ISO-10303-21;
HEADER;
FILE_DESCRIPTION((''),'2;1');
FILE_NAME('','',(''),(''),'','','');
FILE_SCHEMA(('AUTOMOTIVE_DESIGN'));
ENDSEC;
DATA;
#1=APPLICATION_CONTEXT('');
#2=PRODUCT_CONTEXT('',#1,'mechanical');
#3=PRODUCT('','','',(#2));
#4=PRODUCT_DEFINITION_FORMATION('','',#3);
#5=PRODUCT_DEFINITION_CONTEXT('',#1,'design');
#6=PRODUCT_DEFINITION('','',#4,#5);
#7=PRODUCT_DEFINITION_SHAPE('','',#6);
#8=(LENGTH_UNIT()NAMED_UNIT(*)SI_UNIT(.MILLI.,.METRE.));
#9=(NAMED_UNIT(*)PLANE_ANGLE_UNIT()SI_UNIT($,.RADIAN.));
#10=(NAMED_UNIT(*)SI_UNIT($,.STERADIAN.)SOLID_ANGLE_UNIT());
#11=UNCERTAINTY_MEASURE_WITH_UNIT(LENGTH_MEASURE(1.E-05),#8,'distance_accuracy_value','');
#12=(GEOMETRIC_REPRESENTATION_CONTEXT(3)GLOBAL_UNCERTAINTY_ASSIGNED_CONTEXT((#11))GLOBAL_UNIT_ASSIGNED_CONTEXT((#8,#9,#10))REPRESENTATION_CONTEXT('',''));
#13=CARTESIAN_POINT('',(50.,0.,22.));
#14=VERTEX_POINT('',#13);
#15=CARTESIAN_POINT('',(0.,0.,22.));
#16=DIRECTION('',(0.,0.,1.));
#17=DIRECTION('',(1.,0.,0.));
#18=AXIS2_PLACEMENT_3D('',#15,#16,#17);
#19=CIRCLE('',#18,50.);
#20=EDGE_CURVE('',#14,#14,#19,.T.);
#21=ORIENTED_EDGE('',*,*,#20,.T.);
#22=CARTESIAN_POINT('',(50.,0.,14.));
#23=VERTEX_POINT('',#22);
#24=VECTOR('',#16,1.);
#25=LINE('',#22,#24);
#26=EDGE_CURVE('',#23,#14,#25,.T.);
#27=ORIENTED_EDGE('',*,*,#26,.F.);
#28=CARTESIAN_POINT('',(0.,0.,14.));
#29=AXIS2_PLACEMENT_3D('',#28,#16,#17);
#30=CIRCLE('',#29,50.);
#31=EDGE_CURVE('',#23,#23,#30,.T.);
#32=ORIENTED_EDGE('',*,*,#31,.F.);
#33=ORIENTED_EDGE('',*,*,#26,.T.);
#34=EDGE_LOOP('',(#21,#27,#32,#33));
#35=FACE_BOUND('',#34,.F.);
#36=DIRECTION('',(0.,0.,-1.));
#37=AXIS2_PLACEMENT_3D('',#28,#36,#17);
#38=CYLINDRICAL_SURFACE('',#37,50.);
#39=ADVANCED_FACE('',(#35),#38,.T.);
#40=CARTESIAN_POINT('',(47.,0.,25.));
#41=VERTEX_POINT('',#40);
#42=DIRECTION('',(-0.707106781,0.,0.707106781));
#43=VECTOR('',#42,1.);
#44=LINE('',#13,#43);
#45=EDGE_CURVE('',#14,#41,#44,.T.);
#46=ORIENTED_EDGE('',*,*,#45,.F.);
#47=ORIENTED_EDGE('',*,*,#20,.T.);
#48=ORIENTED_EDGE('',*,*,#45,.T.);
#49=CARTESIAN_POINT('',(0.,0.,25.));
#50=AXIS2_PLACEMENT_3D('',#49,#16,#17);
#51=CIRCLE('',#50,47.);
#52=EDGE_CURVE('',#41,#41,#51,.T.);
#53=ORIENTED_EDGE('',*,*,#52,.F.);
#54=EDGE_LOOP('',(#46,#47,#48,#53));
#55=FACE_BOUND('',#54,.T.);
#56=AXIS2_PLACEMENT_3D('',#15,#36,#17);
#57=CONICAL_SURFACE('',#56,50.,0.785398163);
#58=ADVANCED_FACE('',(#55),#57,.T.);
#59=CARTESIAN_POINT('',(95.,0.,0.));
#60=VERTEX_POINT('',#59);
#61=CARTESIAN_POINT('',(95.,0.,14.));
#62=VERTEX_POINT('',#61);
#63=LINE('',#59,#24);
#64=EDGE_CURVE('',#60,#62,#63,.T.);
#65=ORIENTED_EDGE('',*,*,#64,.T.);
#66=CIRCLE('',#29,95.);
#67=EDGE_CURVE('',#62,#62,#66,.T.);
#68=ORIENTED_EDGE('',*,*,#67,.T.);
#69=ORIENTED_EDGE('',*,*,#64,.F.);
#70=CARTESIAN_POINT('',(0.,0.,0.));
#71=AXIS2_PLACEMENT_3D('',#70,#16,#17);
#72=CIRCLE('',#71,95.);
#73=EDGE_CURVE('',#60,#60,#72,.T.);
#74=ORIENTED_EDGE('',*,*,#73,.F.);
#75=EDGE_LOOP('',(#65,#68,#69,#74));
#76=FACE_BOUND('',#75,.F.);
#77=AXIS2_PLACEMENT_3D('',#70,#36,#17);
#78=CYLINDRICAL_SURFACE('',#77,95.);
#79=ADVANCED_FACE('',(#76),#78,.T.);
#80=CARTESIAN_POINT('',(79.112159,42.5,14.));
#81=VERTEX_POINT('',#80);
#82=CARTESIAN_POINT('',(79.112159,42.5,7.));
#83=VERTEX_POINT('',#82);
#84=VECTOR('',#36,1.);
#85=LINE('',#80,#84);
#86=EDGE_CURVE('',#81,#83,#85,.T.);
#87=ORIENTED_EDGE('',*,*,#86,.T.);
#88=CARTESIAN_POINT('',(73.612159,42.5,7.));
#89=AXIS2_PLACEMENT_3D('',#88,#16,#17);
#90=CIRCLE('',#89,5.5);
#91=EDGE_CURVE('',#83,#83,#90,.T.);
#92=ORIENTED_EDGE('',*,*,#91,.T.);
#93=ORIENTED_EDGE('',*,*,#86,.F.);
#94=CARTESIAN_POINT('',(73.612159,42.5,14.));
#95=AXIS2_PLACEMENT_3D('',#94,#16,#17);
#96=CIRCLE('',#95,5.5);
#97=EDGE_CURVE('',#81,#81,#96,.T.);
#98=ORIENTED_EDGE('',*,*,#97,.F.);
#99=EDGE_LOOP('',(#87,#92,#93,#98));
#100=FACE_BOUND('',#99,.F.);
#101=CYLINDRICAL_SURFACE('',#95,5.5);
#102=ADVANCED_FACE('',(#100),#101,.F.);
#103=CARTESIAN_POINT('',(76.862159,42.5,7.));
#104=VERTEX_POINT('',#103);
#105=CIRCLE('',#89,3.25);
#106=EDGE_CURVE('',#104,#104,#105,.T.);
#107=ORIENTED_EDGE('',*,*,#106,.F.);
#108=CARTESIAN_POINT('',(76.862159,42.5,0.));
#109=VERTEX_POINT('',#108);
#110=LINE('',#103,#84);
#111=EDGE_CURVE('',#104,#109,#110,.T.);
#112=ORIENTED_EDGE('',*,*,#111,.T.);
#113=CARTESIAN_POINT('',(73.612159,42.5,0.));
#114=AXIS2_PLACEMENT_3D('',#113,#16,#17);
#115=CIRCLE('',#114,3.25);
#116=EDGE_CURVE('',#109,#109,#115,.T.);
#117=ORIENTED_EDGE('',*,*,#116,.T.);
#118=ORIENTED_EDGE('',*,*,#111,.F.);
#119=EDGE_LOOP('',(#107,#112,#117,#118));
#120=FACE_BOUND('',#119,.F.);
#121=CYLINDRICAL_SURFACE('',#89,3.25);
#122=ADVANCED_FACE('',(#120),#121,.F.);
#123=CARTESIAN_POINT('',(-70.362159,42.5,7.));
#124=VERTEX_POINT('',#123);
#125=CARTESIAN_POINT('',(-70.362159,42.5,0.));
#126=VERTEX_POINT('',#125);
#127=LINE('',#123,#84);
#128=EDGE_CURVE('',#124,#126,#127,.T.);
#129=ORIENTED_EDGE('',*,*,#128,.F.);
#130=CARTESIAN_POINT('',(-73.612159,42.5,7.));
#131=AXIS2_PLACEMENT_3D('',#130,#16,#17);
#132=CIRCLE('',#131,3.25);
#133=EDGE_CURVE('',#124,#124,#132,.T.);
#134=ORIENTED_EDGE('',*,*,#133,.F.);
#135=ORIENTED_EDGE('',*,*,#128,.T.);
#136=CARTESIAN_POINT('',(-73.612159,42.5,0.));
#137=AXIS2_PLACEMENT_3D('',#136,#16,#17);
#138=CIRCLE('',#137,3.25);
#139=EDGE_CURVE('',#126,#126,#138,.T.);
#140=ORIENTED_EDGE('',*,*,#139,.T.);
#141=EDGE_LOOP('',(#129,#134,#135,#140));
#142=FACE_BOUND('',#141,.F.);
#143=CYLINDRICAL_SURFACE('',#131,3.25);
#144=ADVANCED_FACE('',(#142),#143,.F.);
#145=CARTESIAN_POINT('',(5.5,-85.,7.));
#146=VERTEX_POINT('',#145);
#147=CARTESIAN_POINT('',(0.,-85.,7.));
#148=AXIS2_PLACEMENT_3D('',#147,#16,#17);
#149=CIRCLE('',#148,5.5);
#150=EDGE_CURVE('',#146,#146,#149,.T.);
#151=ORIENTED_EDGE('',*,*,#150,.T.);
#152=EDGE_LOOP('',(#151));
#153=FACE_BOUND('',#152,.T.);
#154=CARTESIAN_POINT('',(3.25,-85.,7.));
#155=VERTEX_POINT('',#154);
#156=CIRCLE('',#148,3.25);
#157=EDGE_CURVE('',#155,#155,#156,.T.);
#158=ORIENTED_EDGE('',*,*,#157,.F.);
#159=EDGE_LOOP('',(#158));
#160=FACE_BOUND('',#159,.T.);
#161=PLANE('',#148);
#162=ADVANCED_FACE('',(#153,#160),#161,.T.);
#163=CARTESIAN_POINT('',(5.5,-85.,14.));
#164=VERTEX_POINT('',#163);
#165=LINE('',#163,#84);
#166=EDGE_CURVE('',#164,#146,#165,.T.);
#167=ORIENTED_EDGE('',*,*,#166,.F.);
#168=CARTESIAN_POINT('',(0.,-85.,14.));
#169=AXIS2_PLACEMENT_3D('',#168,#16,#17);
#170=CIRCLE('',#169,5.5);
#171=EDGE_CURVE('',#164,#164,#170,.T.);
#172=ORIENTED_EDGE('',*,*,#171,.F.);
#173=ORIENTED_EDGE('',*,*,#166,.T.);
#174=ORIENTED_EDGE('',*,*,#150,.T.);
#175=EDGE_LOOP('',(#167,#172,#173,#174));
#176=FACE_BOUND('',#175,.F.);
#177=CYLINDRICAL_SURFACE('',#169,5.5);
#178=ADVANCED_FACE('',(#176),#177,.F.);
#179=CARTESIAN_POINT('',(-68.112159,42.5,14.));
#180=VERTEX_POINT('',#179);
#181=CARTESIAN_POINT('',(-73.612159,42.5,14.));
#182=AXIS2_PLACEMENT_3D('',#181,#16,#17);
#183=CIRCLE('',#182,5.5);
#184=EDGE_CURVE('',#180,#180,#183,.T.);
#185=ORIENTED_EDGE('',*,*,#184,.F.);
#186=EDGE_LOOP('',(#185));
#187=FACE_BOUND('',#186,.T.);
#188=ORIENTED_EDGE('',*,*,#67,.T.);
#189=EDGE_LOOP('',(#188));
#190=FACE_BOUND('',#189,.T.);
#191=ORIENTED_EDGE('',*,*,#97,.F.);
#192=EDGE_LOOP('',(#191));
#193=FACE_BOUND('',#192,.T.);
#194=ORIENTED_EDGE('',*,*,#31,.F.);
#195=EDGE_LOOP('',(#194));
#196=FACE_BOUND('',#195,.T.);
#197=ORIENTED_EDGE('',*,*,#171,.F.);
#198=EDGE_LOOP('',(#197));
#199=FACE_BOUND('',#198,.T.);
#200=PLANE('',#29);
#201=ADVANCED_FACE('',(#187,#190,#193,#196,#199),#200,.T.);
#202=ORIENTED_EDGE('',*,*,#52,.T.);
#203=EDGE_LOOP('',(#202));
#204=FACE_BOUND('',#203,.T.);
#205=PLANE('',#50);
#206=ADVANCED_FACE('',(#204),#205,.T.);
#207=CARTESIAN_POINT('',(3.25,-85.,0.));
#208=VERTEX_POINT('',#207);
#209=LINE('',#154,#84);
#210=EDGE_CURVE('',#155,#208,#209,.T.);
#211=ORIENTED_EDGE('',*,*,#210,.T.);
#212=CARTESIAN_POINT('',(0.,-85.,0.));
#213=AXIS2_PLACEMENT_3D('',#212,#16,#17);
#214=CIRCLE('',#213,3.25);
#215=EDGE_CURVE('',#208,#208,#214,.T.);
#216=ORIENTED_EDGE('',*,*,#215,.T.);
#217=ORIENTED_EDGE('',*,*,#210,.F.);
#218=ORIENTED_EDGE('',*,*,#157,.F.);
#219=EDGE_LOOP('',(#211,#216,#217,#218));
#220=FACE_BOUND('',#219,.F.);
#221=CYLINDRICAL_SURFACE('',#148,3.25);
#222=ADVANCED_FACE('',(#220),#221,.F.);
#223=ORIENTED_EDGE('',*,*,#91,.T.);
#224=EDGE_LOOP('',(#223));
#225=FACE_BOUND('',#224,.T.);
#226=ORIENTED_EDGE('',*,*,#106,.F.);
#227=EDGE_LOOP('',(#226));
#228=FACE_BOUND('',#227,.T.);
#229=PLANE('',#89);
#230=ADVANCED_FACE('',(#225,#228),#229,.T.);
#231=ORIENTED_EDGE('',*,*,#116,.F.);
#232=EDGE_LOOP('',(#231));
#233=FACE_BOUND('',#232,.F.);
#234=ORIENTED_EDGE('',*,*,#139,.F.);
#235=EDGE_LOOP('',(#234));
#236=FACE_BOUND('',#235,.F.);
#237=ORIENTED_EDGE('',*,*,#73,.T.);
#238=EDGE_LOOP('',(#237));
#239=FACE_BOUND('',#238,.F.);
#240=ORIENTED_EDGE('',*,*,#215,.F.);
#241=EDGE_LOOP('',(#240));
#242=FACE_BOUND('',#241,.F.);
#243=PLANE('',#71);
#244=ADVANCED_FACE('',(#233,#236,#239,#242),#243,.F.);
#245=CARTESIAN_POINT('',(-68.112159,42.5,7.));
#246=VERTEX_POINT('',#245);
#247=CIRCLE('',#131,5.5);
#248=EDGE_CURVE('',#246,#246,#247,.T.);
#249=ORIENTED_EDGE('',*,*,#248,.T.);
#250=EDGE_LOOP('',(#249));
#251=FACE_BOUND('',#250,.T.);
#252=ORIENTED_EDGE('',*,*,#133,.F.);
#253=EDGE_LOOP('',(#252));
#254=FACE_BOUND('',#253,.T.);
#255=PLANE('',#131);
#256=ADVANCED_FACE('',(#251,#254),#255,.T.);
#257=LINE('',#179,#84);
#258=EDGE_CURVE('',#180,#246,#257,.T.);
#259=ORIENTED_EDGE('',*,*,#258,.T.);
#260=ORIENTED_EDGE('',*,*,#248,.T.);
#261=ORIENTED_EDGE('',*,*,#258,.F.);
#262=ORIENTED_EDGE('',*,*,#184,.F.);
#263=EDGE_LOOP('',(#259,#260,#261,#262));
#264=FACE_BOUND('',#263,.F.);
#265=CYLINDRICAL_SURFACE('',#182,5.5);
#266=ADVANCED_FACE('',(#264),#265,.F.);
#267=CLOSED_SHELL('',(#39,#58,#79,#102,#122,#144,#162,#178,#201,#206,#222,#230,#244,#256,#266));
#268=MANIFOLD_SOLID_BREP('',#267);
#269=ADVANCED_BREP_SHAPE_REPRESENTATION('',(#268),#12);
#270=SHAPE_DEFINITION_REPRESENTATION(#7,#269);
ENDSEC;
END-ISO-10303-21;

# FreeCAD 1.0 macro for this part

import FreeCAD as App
import Part
import Sketcher
Q = App.Units.Quantity


def edges_at(feature, points):
    """Names of the edges that pass closest to the given points."""
    edges = feature.Shape.Edges
    near = lambda p: min(range(len(edges)), key=lambda i: edges[i].distToShape(Part.Vertex(*p))[0])
    return sorted({f"Edge{near(p) + 1}" for p in points})

doc = App.newDocument("Part")
body = doc.addObject("PartDesign::Body", "Body")

# Sketch on XY plane
sketch1 = body.newObject("Sketcher::SketchObject", "Sketch")
sketch1.AttachmentSupport = (doc.getObject("XY_Plane"), [""])
sketch1.MapMode = "FlatFace"
sketch1.addGeometry(Part.Circle(App.Vector(0, 0, 0), App.Vector(0, 0, 1), 95), False)
sketch1.addConstraint([
    Sketcher.Constraint("Coincident", 0, 3, -1, 1),
    Sketcher.Constraint("Diameter", 0, Q("190 mm")),
])
pad1 = body.newObject("PartDesign::Pad", "Pad")
pad1.Profile = sketch1
pad1.Length = 14

# Sketch on XY plane
sketch2 = body.newObject("Sketcher::SketchObject", "Sketch001")
sketch2.AttachmentSupport = (doc.getObject("XY_Plane"), [""])
sketch2.MapMode = "FlatFace"
sketch2.AttachmentOffset = App.Placement(App.Vector(0, 0, 14), App.Rotation())
sketch2.addGeometry(Part.Circle(App.Vector(0, 0, 0), App.Vector(0, 0, 1), 50), False)
sketch2.addConstraint([
    Sketcher.Constraint("Coincident", 0, 3, -1, 1),
    Sketcher.Constraint("Diameter", 0, Q("100 mm")),
])
pad2 = body.newObject("PartDesign::Pad", "Pad001")
pad2.Profile = sketch2
pad2.Length = 11
doc.recompute()

chamfer = body.newObject("PartDesign::Chamfer", "Chamfer")
chamfer.Base = (pad2, edges_at(pad2, [(-50, 0, 25)]))
chamfer.Size = 3

# Sketch on XY plane
sketch3 = body.newObject("Sketcher::SketchObject", "Sketch002")
sketch3.AttachmentSupport = (doc.getObject("XY_Plane"), [""])
sketch3.MapMode = "FlatFace"
sketch3.AttachmentOffset = App.Placement(App.Vector(0, 0, 14), App.Rotation())
sketch3.addGeometry([
    Part.Circle(App.Vector(0, -85, 0), App.Vector(0, 0, 1), 6),
    Part.Circle(App.Vector(-74, 42, 0), App.Vector(0, 0, 1), 6),
    Part.Circle(App.Vector(74, 42, 0), App.Vector(0, 0, 1), 6),
], False)
sketch3.addConstraint([
    Sketcher.Constraint("Equal", 0, 1),
    Sketcher.Constraint("Equal", 1, 2),
    Sketcher.Constraint("Symmetric", 1, 3, 2, 3, -2),
    Sketcher.Constraint("PointOnObject", 0, 3, -2),
    Sketcher.Constraint("Diameter", 0, Q("11 mm")),
    Sketcher.Constraint("DistanceY", 0, 3, -1, 1, Q("85 mm")),
    Sketcher.Constraint("DistanceY", -1, 1, 1, 3, Q("42.5 mm")),
    Sketcher.Constraint("DistanceX", 1, 3, -1, 1, Q("73.612159 mm")),
])
pocket1 = body.newObject("PartDesign::Pocket", "Pocket")
pocket1.Profile = sketch3
pocket1.Length = 7

# Sketch on XY plane
sketch4 = body.newObject("Sketcher::SketchObject", "Sketch003")
sketch4.AttachmentSupport = (doc.getObject("XY_Plane"), [""])
sketch4.MapMode = "FlatFace"
sketch4.AttachmentOffset = App.Placement(App.Vector(0, 0, 7), App.Rotation())
sketch4.addGeometry([
    Part.Circle(App.Vector(0, -85, 0), App.Vector(0, 0, 1), 3.2),
    Part.Circle(App.Vector(73.6, 42.5, 0), App.Vector(0, 0, 1), 3.2),
    Part.Circle(App.Vector(-73.6, 42.5, 0), App.Vector(0, 0, 1), 3.2),
], False)
sketch4.addConstraint([
    Sketcher.Constraint("Equal", 0, 1),
    Sketcher.Constraint("Equal", 1, 2),
    Sketcher.Constraint("Symmetric", 1, 3, 2, 3, -2),
    Sketcher.Constraint("PointOnObject", 0, 3, -2),
    Sketcher.Constraint("Diameter", 0, Q("6.5 mm")),
    Sketcher.Constraint("DistanceY", 0, 3, -1, 1, Q("85 mm")),
    Sketcher.Constraint("DistanceY", -1, 1, 1, 3, Q("42.5 mm")),
    Sketcher.Constraint("DistanceX", -1, 1, 1, 3, Q("73.612159 mm")),
])
pocket2 = body.newObject("PartDesign::Pocket", "Pocket001")
pocket2.Profile = sketch4
pocket2.Length = 25

doc.recompute()
